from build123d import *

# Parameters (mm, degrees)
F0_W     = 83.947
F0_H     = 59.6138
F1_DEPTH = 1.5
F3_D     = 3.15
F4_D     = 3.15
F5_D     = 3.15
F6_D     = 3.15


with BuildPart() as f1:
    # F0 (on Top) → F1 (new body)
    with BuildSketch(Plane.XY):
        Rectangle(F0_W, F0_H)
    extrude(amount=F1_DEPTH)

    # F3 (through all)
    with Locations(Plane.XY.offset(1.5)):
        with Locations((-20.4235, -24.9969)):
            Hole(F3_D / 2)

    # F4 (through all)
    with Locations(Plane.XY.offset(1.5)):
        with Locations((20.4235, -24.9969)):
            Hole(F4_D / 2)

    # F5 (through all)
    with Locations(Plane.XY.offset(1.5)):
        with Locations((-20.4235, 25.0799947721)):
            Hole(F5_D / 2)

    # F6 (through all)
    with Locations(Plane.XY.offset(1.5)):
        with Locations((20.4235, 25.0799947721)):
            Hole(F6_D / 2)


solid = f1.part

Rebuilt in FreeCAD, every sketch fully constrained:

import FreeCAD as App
import Part
import Sketcher

V = App.Vector
Q = App.Units.Quantity


def add_polygon(sketch, points):
    """Adds a closed chain of lines whose ends are joined by coincident constraints."""
    first, n = sketch.GeometryCount, len(points)
    for a, b in zip(points, points[1:] + points[:1]):
        sketch.addGeometry(Part.LineSegment(App.Vector(*a, 0), App.Vector(*b, 0)), False)
    for i in range(n):
        sketch.addConstraint(Sketcher.Constraint("Coincident", first + i, 2, first + (i + 1) % n, 1))

doc = App.newDocument("Part")
body = doc.addObject("PartDesign::Body", "Body")

# Sketch on XY plane
sketch1 = body.newObject("Sketcher::SketchObject", "Sketch")
sketch1.AttachmentSupport = (doc.getObject("XY_Plane"), [""])
sketch1.MapMode = "FlatFace"
add_polygon(sketch1, [(-42, 30), (-42, -30), (42, -30), (42, 30)])  # lines 0-3
sketch1.addConstraint([
    Sketcher.Constraint("Vertical", 0),
    Sketcher.Constraint("Horizontal", 1),
    Sketcher.Constraint("Vertical", 2),
    Sketcher.Constraint("Horizontal", 3),
    Sketcher.Constraint("Symmetric", 0, 2, 2, 2, -1, 1),
    Sketcher.Constraint("DistanceX", 1, 1, 1, 2, Q("3.305 in")),
    Sketcher.Constraint("DistanceY", 0, 2, 0, 1, Q("2.347 in")),
])
pad1 = body.newObject("PartDesign::Pad", "Pad")
pad1.Profile = sketch1
pad1.Length = 1.5

# Sketch on XY plane
sketch2 = body.newObject("Sketcher::SketchObject", "Sketch001")
sketch2.AttachmentSupport = (doc.getObject("XY_Plane"), [""])
sketch2.MapMode = "FlatFace"
sketch2.AttachmentOffset = App.Placement(V(0, 0, 1.5), App.Rotation())
sketch2.addGeometry(Part.Circle(V(-20.4, -25, 0), V(0, 0, 1), 1.6), False)
sketch2.addConstraint([
    Sketcher.Constraint("Diameter", 0, Q("3.15 mm")),
    Sketcher.Constraint("DistanceX", 0, 3, -1, 1, Q("20.4235 mm")),
    Sketcher.Constraint("DistanceY", 0, 3, -1, 1, Q("24.9969 mm")),
])
doc.recompute()
hole = body.newObject("PartDesign::Hole", "Hole")
hole.Profile = sketch2
hole.ThreadType = "None"
hole.Diameter = 3.15
hole.DepthType = "ThroughAll"

# Sketch on XY plane
sketch3 = body.newObject("Sketcher::SketchObject", "Sketch002")
sketch3.AttachmentSupport = (doc.getObject("XY_Plane"), [""])
sketch3.MapMode = "FlatFace"
sketch3.AttachmentOffset = App.Placement(V(0, 0, 1.5), App.Rotation())
sketch3.addGeometry(Part.Circle(V(20.4, -25, 0), V(0, 0, 1), 1.6), False)
sketch3.addConstraint([
    Sketcher.Constraint("Diameter", 0, Q("3.15 mm")),
    Sketcher.Constraint("DistanceX", -1, 1, 0, 3, Q("20.4235 mm")),
    Sketcher.Constraint("DistanceY", 0, 3, -1, 1, Q("24.9969 mm")),
])
doc.recompute()
hole2 = body.newObject("PartDesign::Hole", "Hole001")
hole2.Profile = sketch3
hole2.ThreadType = "None"
hole2.Diameter = 3.15
hole2.DepthType = "ThroughAll"

# Sketch on XY plane
sketch4 = body.newObject("Sketcher::SketchObject", "Sketch003")
sketch4.AttachmentSupport = (doc.getObject("XY_Plane"), [""])
sketch4.MapMode = "FlatFace"
sketch4.AttachmentOffset = App.Placement(V(0, 0, 1.5), App.Rotation())
sketch4.addGeometry(Part.Circle(V(-20.4, 25.1, 0), V(0, 0, 1), 1.6), False)
sketch4.addConstraint([
    Sketcher.Constraint("Diameter", 0, Q("3.15 mm")),
    Sketcher.Constraint("DistanceX", 0, 3, -1, 1, Q("20.4235 mm")),
    Sketcher.Constraint("DistanceY", -1, 1, 0, 3, Q("25.079995 mm")),
])
doc.recompute()
hole3 = body.newObject("PartDesign::Hole", "Hole002")
hole3.Profile = sketch4
hole3.ThreadType = "None"
hole3.Diameter = 3.15
hole3.DepthType = "ThroughAll"

# Sketch on XY plane
sketch5 = body.newObject("Sketcher::SketchObject", "Sketch004")
sketch5.AttachmentSupport = (doc.getObject("XY_Plane"), [""])
sketch5.MapMode = "FlatFace"
sketch5.AttachmentOffset = App.Placement(V(0, 0, 1.5), App.Rotation())
sketch5.addGeometry(Part.Circle(V(20.4, 25.1, 0), V(0, 0, 1), 1.6), False)
sketch5.addConstraint([
    Sketcher.Constraint("Diameter", 0, Q("3.15 mm")),
    Sketcher.Constraint("DistanceX", -1, 1, 0, 3, Q("20.4235 mm")),
    Sketcher.Constraint("DistanceY", -1, 1, 0, 3, Q("25.079995 mm")),
])
doc.recompute()
hole4 = body.newObject("PartDesign::Hole", "Hole003")
hole4.Profile = sketch5
hole4.ThreadType = "None"
hole4.Diameter = 3.15
hole4.DepthType = "ThroughAll"

doc.recompute()
